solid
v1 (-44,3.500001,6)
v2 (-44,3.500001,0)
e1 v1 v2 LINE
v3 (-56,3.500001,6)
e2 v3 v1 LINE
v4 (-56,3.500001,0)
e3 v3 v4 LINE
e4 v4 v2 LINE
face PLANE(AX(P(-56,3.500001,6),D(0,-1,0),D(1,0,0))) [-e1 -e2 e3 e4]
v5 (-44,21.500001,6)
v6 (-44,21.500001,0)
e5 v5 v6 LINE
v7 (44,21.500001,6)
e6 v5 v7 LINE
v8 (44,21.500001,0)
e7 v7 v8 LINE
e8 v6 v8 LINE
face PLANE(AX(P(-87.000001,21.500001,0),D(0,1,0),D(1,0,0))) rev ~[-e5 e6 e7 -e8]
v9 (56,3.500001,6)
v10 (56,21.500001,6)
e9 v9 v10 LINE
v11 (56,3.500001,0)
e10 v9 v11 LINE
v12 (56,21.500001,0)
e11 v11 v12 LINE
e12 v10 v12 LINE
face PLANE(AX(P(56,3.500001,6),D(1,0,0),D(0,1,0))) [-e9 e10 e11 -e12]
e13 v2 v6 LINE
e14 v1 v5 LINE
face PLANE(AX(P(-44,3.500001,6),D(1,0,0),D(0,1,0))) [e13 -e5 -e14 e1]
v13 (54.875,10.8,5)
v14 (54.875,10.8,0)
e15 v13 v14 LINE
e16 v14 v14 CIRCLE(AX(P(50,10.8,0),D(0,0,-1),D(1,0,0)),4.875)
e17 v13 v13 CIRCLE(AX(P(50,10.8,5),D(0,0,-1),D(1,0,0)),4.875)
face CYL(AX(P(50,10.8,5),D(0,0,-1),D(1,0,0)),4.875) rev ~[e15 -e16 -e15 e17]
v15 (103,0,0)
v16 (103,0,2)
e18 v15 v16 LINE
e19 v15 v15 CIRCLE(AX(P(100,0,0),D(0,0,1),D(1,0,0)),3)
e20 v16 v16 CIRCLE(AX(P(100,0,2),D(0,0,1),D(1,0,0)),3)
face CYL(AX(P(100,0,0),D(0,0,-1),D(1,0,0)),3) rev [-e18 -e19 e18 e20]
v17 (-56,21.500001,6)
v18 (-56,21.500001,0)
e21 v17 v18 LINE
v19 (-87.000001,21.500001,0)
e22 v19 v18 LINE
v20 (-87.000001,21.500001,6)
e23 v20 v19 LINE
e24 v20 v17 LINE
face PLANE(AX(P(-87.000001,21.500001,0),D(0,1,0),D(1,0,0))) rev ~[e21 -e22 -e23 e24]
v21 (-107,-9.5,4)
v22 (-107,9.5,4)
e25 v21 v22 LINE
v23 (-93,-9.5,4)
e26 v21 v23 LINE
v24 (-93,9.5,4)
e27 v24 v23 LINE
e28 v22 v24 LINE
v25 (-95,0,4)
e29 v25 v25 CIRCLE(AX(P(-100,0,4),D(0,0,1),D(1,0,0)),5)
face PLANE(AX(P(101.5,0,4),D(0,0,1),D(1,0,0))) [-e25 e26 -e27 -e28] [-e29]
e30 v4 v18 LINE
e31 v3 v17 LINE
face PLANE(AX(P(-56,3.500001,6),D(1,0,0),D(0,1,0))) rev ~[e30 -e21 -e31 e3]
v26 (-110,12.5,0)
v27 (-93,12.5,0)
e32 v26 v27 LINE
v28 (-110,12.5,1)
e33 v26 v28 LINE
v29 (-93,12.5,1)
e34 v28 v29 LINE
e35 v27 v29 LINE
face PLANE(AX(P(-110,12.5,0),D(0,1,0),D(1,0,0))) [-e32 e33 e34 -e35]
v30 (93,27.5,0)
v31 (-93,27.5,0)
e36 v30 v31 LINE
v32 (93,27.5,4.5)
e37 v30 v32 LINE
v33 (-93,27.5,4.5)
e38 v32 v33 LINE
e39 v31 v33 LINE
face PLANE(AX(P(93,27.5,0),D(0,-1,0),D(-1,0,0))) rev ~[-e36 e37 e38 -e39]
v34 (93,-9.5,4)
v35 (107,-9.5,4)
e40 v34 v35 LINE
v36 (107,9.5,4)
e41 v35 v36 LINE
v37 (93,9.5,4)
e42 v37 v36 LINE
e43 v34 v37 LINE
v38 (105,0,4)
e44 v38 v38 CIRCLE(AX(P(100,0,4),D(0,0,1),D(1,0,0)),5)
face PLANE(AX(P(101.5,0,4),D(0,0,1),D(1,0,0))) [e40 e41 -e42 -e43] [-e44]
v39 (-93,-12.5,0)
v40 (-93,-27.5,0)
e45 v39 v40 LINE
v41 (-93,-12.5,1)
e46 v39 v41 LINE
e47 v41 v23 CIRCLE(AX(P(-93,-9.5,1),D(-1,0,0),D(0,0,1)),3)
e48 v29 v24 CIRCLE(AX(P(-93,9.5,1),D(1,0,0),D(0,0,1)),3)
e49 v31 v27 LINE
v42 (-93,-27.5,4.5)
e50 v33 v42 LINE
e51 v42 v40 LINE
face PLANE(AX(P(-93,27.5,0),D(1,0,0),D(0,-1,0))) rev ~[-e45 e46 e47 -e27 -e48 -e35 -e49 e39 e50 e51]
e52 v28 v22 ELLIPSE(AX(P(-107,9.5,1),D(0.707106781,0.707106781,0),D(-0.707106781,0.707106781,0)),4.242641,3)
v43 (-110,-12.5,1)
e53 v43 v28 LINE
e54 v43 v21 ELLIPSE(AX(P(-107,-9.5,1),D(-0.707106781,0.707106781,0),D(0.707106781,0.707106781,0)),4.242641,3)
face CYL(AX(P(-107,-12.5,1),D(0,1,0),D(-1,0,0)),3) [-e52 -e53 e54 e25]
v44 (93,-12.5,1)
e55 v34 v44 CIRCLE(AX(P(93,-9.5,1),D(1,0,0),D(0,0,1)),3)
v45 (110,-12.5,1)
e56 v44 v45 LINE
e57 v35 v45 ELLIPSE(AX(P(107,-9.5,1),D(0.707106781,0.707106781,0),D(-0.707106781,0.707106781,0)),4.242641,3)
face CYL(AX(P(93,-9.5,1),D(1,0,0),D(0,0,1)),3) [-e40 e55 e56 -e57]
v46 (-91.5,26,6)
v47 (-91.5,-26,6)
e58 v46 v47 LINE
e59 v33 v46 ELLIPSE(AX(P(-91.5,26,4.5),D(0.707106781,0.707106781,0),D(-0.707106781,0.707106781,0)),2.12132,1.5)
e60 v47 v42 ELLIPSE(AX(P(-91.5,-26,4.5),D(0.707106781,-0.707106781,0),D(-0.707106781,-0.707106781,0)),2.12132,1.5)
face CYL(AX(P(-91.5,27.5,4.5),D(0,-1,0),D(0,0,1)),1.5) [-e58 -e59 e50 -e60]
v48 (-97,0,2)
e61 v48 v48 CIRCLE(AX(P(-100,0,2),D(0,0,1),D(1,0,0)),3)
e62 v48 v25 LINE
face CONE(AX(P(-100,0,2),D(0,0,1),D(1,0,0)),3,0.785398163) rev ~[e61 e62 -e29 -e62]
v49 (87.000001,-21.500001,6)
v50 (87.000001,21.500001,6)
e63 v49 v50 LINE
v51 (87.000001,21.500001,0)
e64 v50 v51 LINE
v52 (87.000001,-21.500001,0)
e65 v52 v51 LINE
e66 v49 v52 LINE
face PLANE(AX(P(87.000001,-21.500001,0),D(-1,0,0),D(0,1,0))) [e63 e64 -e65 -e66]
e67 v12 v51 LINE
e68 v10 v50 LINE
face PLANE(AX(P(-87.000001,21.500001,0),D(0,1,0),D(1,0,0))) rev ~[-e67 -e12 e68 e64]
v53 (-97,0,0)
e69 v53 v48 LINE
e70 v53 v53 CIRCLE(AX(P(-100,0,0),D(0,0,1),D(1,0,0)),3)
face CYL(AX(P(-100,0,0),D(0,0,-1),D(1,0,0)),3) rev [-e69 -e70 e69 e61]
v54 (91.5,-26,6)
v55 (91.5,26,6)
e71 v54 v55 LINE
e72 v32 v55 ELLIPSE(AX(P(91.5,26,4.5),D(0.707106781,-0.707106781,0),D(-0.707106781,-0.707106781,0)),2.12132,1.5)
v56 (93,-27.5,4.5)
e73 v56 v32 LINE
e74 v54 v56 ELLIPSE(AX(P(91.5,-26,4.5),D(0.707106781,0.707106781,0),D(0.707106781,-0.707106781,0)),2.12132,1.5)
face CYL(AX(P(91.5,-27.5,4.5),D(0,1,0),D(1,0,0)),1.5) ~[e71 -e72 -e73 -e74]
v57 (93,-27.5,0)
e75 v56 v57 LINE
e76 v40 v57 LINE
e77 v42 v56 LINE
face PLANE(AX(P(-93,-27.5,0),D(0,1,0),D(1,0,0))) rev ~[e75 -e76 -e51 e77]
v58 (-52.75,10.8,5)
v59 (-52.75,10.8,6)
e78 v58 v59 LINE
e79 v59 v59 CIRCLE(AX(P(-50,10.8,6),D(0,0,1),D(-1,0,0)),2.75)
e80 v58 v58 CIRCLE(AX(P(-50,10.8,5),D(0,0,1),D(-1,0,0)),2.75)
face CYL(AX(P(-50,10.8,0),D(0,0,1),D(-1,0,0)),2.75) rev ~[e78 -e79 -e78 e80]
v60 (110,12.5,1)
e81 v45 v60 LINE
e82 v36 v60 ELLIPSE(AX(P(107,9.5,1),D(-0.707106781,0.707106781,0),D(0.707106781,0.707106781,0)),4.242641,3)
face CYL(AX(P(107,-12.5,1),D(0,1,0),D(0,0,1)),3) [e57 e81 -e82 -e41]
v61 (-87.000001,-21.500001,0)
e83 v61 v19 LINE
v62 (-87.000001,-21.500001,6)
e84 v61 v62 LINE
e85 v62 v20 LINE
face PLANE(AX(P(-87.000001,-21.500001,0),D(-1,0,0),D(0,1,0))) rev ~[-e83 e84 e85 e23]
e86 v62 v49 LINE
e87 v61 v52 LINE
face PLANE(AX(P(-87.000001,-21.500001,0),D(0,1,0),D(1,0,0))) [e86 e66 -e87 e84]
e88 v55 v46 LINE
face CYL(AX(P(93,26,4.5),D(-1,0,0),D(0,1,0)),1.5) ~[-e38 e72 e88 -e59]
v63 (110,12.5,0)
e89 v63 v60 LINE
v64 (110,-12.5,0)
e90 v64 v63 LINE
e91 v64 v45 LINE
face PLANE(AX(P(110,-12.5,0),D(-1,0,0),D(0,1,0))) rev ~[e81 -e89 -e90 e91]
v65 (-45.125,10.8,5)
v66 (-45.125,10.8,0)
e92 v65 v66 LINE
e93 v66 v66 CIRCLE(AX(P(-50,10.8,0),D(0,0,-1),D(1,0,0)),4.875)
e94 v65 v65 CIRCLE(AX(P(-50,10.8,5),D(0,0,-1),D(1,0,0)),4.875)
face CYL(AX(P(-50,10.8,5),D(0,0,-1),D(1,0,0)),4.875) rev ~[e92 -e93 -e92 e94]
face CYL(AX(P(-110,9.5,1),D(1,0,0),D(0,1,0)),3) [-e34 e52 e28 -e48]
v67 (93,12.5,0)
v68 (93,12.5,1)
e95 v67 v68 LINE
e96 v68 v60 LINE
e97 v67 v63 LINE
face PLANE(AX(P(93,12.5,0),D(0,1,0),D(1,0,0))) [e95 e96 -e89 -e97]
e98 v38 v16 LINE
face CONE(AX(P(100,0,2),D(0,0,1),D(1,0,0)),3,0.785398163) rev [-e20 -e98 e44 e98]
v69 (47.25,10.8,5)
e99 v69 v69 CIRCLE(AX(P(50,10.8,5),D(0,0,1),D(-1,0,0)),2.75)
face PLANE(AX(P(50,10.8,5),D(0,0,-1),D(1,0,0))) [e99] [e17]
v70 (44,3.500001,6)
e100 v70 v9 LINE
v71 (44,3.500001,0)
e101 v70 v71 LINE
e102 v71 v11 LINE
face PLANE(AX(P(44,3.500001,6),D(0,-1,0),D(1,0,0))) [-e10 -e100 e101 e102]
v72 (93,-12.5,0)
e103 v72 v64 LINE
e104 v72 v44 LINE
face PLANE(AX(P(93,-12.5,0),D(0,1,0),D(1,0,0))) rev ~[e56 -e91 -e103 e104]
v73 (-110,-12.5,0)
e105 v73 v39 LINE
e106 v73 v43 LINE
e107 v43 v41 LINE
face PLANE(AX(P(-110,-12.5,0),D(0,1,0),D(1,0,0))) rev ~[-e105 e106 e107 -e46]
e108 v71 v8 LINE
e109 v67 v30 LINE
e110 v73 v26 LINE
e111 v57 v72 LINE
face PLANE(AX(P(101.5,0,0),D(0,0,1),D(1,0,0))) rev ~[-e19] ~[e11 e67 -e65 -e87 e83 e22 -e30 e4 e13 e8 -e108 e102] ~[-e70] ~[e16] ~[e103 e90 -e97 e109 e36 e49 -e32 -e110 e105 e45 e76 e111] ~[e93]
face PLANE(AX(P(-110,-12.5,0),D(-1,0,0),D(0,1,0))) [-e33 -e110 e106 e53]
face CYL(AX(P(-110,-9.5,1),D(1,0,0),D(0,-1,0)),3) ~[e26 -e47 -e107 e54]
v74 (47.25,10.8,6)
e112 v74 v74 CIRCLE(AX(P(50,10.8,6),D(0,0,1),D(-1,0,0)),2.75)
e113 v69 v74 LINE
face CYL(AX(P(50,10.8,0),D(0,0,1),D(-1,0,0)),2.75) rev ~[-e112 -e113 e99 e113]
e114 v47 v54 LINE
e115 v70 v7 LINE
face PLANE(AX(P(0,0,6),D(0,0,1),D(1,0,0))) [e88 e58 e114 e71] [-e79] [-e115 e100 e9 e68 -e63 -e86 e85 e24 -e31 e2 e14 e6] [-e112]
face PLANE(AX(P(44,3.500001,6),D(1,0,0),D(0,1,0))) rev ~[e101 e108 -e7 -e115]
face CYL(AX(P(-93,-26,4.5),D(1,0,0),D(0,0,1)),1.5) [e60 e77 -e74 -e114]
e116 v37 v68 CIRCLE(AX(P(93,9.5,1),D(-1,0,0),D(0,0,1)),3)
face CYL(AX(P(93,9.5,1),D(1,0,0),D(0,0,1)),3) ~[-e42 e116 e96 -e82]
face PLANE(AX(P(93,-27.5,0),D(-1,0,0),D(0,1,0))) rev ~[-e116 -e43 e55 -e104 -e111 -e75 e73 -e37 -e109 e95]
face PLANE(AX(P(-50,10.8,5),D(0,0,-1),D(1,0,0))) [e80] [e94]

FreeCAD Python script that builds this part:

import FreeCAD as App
import Part
import Sketcher


def edges_at(feature, points):
    """Names of the edges that pass closest to the given points."""
    edges = feature.Shape.Edges
    near = lambda p: min(range(len(edges)), key=lambda i: edges[i].distToShape(Part.Vertex(*p))[0])
    return sorted({f"Edge{near(p) + 1}" for p in points})


def add_polygon(sketch, points):
    """Adds a closed chain of lines whose ends are joined by coincident constraints."""
    first, n = sketch.GeometryCount, len(points)
    for a, b in zip(points, points[1:] + points[:1]):
        sketch.addGeometry(Part.LineSegment(App.Vector(*a, 0), App.Vector(*b, 0)), False)
    for i in range(n):
        sketch.addConstraint(Sketcher.Constraint("Coincident", first + i, 2, first + (i + 1) % n, 1))

doc = App.newDocument("Part")
params = doc.addObject("Spreadsheet::Sheet", "Params")
for row, (alias, value) in enumerate([
    ("sketch1_width", "186 mm"),
    ("sketch1_width2", "174.000001 mm"),
    ("sketch1_height", "55 mm"),
    ("sketch1_height2", "43.000001 mm"),
    ("pad1_length", "6 mm"),
    ("sketch2_diameter", "6 mm"),
    ("sketch2_width", "17 mm"),
    ("sketch2_width2", "186 mm"),
    ("sketch2_width3", "174.000001 mm"),
    ("sketch2_height", "25 mm"),
    ("pad2_length", "4 mm"),
    ("sketch3_width", "12 mm"),
    ("sketch3_height", "18 mm"),
    ("pad3_length", "6 mm"),
    ("sketch4_diameter", "5.5 mm"),
    ("hole_diameter", "5.5 mm"),
    ("hole_cbore_diameter", "9.75 mm"),
    ("hole_cbore_depth", "5 mm"),
    ("chamfer_size", "2 mm"),
    ("fillet_radius", "3 mm"),
    ("fillet2_radius", "1.5 mm"),
], start=1):
    params.set(f"A{row}", alias)
    params.set(f"B{row}", "=" + value)
    params.setAlias(f"B{row}", alias)

body = doc.addObject("PartDesign::Body", "Body")

# Sketch on XY plane
sketch1 = body.newObject("Sketcher::SketchObject", "Sketch")
sketch1.AttachmentSupport = (doc.getObject("XY_Plane"), [""])
sketch1.MapMode = "FlatFace"
add_polygon(sketch1, [(93, 27.5), (-93, 27.5), (-93, -27.5), (93, -27.5)])  # lines 0-3
add_polygon(sketch1, [(87.000001, -21.500001), (-87.000001, -21.500001), (-87.000001, 21.500001), (87.000001, 21.500001)])  # lines 4-7
sketch1.addConstraint(Sketcher.Constraint("Horizontal", 0))
sketch1.addConstraint(Sketcher.Constraint("Vertical", 1))
sketch1.addConstraint(Sketcher.Constraint("Horizontal", 2))
sketch1.addConstraint(Sketcher.Constraint("Vertical", 3))
sketch1.addConstraint(Sketcher.Constraint("Horizontal", 4))
sketch1.addConstraint(Sketcher.Constraint("Vertical", 5))
sketch1.addConstraint(Sketcher.Constraint("Horizontal", 6))
sketch1.addConstraint(Sketcher.Constraint("Vertical", 7))
sketch1.addConstraint(Sketcher.Constraint("Symmetric", 0, 2, 2, 2, -1, 1))
sketch1.addConstraint(Sketcher.Constraint("Symmetric", 4, 2, 6, 2, -1, 1))
sketch1.addConstraint(Sketcher.Constraint("DistanceX", 0, 2, 0, 1, 186.0))
sketch1.addConstraint(Sketcher.Constraint("DistanceX", 4, 2, 4, 1, 174.000001))
sketch1.addConstraint(Sketcher.Constraint("DistanceY", 1, 2, 1, 1, 55.0))
sketch1.addConstraint(Sketcher.Constraint("DistanceY", 5, 1, 5, 2, 43.000001))
sketch1.setExpression("Constraints[18]", "Params.sketch1_width")
sketch1.setExpression("Constraints[19]", "Params.sketch1_width2")
sketch1.setExpression("Constraints[20]", "Params.sketch1_height")
sketch1.setExpression("Constraints[21]", "Params.sketch1_height2")
pad1 = body.newObject("PartDesign::Pad", "Pad")
pad1.Profile = sketch1
pad1.setExpression("Length", "Params.pad1_length")

# Sketch on XY plane
sketch2 = body.newObject("Sketcher::SketchObject", "Sketch001")
sketch2.AttachmentSupport = (doc.getObject("XY_Plane"), [""])
sketch2.MapMode = "FlatFace"
add_polygon(sketch2, [(93, -12.5), (110, -12.5), (110, 12.5), (93, 12.5), (93, 27.5), (-93, 27.5), (-93, 12.5), (-110, 12.5), (-110, -12.5), (-93, -12.5), (-93, -27.5), (93, -27.5)])  # lines 0-11
sketch2.addGeometry(Part.Circle(App.Vector(-100, 0, 0), App.Vector(0, 0, 1), 3), False)  # 12
add_polygon(sketch2, [(87.000001, -21.500001), (-87.000001, -21.500001), (-87.000001, 21.500001), (87.000001, 21.500001)])  # lines 13-16
sketch2.addGeometry(Part.Circle(App.Vector(100, 0, 0), App.Vector(0, 0, 1), 3), False)  # 17
sketch2.addConstraint(Sketcher.Constraint("Horizontal", 0))
sketch2.addConstraint(Sketcher.Constraint("Vertical", 1))
sketch2.addConstraint(Sketcher.Constraint("Horizontal", 2))
sketch2.addConstraint(Sketcher.Constraint("Vertical", 3))
sketch2.addConstraint(Sketcher.Constraint("Horizontal", 4))
sketch2.addConstraint(Sketcher.Constraint("Vertical", 5))
sketch2.addConstraint(Sketcher.Constraint("Horizontal", 6))
sketch2.addConstraint(Sketcher.Constraint("Vertical", 7))
sketch2.addConstraint(Sketcher.Constraint("Horizontal", 8))
sketch2.addConstraint(Sketcher.Constraint("Vertical", 9))
sketch2.addConstraint(Sketcher.Constraint("Horizontal", 10))
sketch2.addConstraint(Sketcher.Constraint("Vertical", 11))
sketch2.addConstraint(Sketcher.Constraint("Horizontal", 13))
sketch2.addConstraint(Sketcher.Constraint("Vertical", 14))
sketch2.addConstraint(Sketcher.Constraint("Horizontal", 15))
sketch2.addConstraint(Sketcher.Constraint("Vertical", 16))
sketch2.addConstraint(Sketcher.Constraint("Equal", 12, 17))
sketch2.addConstraint(Sketcher.Constraint("Symmetric", 12, 3, 17, 3, -1, 1))
sketch2.addConstraint(Sketcher.Constraint("Symmetric", 0, 2, 6, 2, -1, 1))
sketch2.addConstraint(Sketcher.Constraint("Symmetric", 2, 2, 8, 2, -1, 1))
sketch2.addConstraint(Sketcher.Constraint("Symmetric", 4, 2, 10, 2, -1, 1))
sketch2.addConstraint(Sketcher.Constraint("Symmetric", 13, 2, 15, 2, -1, 1))
sketch2.addConstraint(Sketcher.Constraint("Symmetric", 2, 2, 5, 2, -2))
sketch2.addConstraint(Sketcher.Constraint("PointOnObject", 12, 3, -1))
sketch2.addConstraint(Sketcher.Constraint("Diameter", 12, 6.0))
sketch2.addConstraint(Sketcher.Constraint("DistanceX", 0, 1, 0, 2, 17.0))
sketch2.addConstraint(Sketcher.Constraint("DistanceX", 4, 2, 4, 1, 186.0))
sketch2.addConstraint(Sketcher.Constraint("DistanceX", 13, 2, 13, 1, 174.000001))
sketch2.addConstraint(Sketcher.Constraint("DistanceY", 1, 1, 1, 2, 25.0))
sketch2.addConstraint(Sketcher.Constraint("DistanceY", 3, 1, 3, 2, 15.0))
sketch2.addConstraint(Sketcher.Constraint("DistanceY", 14, 1, 14, 2, 43.000001))
sketch2.addConstraint(Sketcher.Constraint("DistanceX", 12, 3, -1, 1, 100.0))
sketch2.setExpression("Constraints[40]", "Params.sketch2_diameter")
sketch2.setExpression("Constraints[41]", "Params.sketch2_width")
sketch2.setExpression("Constraints[42]", "Params.sketch2_width2")
sketch2.setExpression("Constraints[43]", "Params.sketch2_width3")
sketch2.setExpression("Constraints[44]", "Params.sketch2_height")
pad2 = body.newObject("PartDesign::Pad", "Pad001")
pad2.Profile = sketch2
pad2.setExpression("Length", "Params.pad2_length")

# Sketch on XY plane
sketch3 = body.newObject("Sketcher::SketchObject", "Sketch002")
sketch3.AttachmentSupport = (doc.getObject("XY_Plane"), [""])
sketch3.MapMode = "FlatFace"
sketch3.AttachmentOffset = App.Placement(App.Vector(0, 0, 6), App.Rotation())
add_polygon(sketch3, [(-56, 21.500001), (-56, 3.500001), (-44, 3.500001), (-44, 21.500001)])  # lines 0-3
add_polygon(sketch3, [(44, 21.500001), (44, 3.500001), (56, 3.500001), (56, 21.500001)])  # lines 4-7
sketch3.addConstraint(Sketcher.Constraint("Vertical", 0))
sketch3.addConstraint(Sketcher.Constraint("Horizontal", 1))
sketch3.addConstraint(Sketcher.Constraint("Vertical", 2))
sketch3.addConstraint(Sketcher.Constraint("Horizontal", 3))
sketch3.addConstraint(Sketcher.Constraint("Vertical", 4))
sketch3.addConstraint(Sketcher.Constraint("Horizontal", 5))
sketch3.addConstraint(Sketcher.Constraint("Vertical", 6))
sketch3.addConstraint(Sketcher.Constraint("Horizontal", 7))
sketch3.addConstraint(Sketcher.Constraint("Symmetric", 1, 2, 4, 2, -2))
sketch3.addConstraint(Sketcher.Constraint("Symmetric", 3, 2, 6, 2, -2))
sketch3.addConstraint(Sketcher.Constraint("DistanceX", 1, 1, 1, 2, 12.0))
sketch3.addConstraint(Sketcher.Constraint("DistanceY", 0, 2, 0, 1, 18.0))
sketch3.addConstraint(Sketcher.Constraint("DistanceX", 0, 2, -1, 1, 56.0))
sketch3.addConstraint(Sketcher.Constraint("DistanceY", -1, 1, 0, 2, 3.500001))
sketch3.setExpression("Constraints[18]", "Params.sketch3_width")
sketch3.setExpression("Constraints[19]", "Params.sketch3_height")
pad3 = body.newObject("PartDesign::Pad", "Pad002")
pad3.Profile = sketch3
pad3.setExpression("Length", "Params.pad3_length")
pad3.Reversed = True

# Sketch on XY plane
sketch4 = body.newObject("Sketcher::SketchObject", "Sketch003")
sketch4.AttachmentSupport = (doc.getObject("XY_Plane"), [""])
sketch4.MapMode = "FlatFace"
sketch4.addGeometry(Part.Circle(App.Vector(-50, 10.8, 0), App.Vector(0, 0, 1), 2.75), False)
sketch4.addGeometry(Part.Circle(App.Vector(50, 10.8, 0), App.Vector(0, 0, 1), 2.75), False)
sketch4.addConstraint(Sketcher.Constraint("Equal", 0, 1))
sketch4.addConstraint(Sketcher.Constraint("Symmetric", 0, 3, 1, 3, -2))
sketch4.addConstraint(Sketcher.Constraint("Diameter", 0, 5.5))
sketch4.addConstraint(Sketcher.Constraint("DistanceX", 0, 3, -1, 1, 50.0))
sketch4.addConstraint(Sketcher.Constraint("DistanceY", -1, 1, 0, 3, 10.8))
sketch4.setExpression("Constraints[2]", "Params.sketch4_diameter")
doc.recompute()
hole = body.newObject("PartDesign::Hole", "Hole")
hole.Profile = sketch4
hole.ThreadType = "None"
hole.setExpression("Diameter", "Params.hole_diameter")
hole.DepthType = "ThroughAll"
hole.HoleCutType = "Counterbore"
hole.setExpression("HoleCutDiameter", "Params.hole_cbore_diameter")
hole.setExpression("HoleCutDepth", "Params.hole_cbore_depth")
hole.Reversed = True
doc.recompute()

chamfer = body.newObject("PartDesign::Chamfer", "Chamfer")
chamfer.Base = (hole, edges_at(hole, [(97, 0, 4), (-103, 0, 4)]))
chamfer.setExpression("Size", "Params.chamfer_size")
doc.recompute()

fillet = body.newObject("PartDesign::Fillet", "Fillet")
fillet.Base = (chamfer, edges_at(chamfer, [
    (-110, 0, 4),
    (-101.5, 12.5, 4),
    (-101.5, -12.5, 4),
    (101.5, 12.5, 4),
    (110, 0, 4),
    (101.5, -12.5, 4),
]))
fillet.setExpression("Radius", "Params.fillet_radius")
doc.recompute()

fillet2 = body.newObject("PartDesign::Fillet", "Fillet001")
fillet2.Base = (fillet, edges_at(fillet, [
    (0, 27.5, 6),
    (-93, 0, 6),
    (0, -27.5, 6),
    (93, 0, 6),
]))
fillet2.setExpression("Radius", "Params.fillet2_radius")

doc.recompute()
